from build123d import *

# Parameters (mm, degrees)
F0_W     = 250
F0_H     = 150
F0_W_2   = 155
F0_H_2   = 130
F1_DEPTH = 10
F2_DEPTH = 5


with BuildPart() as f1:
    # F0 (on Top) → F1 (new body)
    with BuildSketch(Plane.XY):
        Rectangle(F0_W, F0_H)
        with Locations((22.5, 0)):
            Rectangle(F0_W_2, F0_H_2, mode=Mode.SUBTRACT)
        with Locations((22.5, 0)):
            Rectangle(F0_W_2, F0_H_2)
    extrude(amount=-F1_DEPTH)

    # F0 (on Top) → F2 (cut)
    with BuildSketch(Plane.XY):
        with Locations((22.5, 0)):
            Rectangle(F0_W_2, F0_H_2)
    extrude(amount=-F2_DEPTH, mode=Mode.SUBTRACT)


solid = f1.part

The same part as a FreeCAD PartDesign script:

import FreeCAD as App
import Part
import Sketcher


def add_polygon(sketch, points):
    """Adds a closed chain of lines whose ends are joined by coincident constraints."""
    first, n = sketch.GeometryCount, len(points)
    for a, b in zip(points, points[1:] + points[:1]):
        sketch.addGeometry(Part.LineSegment(App.Vector(*a, 0), App.Vector(*b, 0)), False)
    for i in range(n):
        sketch.addConstraint(Sketcher.Constraint("Coincident", first + i, 2, first + (i + 1) % n, 1))

doc = App.newDocument("Part")
body = doc.addObject("PartDesign::Body", "Body")

sketch1 = doc.addObject("Sketcher::SketchObject", "Sketch")
body.addObject(sketch1)
sketch1.AttachmentSupport = (doc.XY_Plane, [""])
sketch1.MapMode = "FlatFace"
add_polygon(sketch1, [(-125, 75), (-125, -75), (125, -75), (125, 75)])
sketch1.addConstraint([
    Sketcher.Constraint("Vertical", 0),
    Sketcher.Constraint("Horizontal", 1),
    Sketcher.Constraint("Vertical", 2),
    Sketcher.Constraint("Horizontal", 3),
    Sketcher.Constraint("Symmetric", 0, 2, 2, 2, -1, 1),
    Sketcher.Constraint("DistanceX", 1, 1, 1, 2, 250.0),
    Sketcher.Constraint("DistanceY", 0, 2, 0, 1, 150.0),
])
pad1 = doc.addObject("PartDesign::Pad", "Pad")
body.addObject(pad1)
pad1.Profile = sketch1
pad1.Length = 10
pad1.Reversed = True

sketch2 = doc.addObject("Sketcher::SketchObject", "Sketch001")
body.addObject(sketch2)
sketch2.AttachmentSupport = (doc.XY_Plane, [""])
sketch2.MapMode = "FlatFace"
add_polygon(sketch2, [(-55, 65), (-55, -65), (100, -65), (100, 65)])
sketch2.addConstraint([
    Sketcher.Constraint("Vertical", 0),
    Sketcher.Constraint("Horizontal", 1),
    Sketcher.Constraint("Vertical", 2),
    Sketcher.Constraint("Horizontal", 3),
    Sketcher.Constraint("DistanceX", 1, 1, 1, 2, 155.0),
    Sketcher.Constraint("DistanceY", 0, 2, 0, 1, 130.0),
    Sketcher.Constraint("DistanceX", 0, 2, -1, 1, 55.0),
    Sketcher.Constraint("DistanceY", 0, 2, -1, 1, 65.0),
])
pocket1 = doc.addObject("PartDesign::Pocket", "Pocket")
body.addObject(pocket1)
pocket1.Profile = sketch2
pocket1.Length = 5

doc.recompute()
